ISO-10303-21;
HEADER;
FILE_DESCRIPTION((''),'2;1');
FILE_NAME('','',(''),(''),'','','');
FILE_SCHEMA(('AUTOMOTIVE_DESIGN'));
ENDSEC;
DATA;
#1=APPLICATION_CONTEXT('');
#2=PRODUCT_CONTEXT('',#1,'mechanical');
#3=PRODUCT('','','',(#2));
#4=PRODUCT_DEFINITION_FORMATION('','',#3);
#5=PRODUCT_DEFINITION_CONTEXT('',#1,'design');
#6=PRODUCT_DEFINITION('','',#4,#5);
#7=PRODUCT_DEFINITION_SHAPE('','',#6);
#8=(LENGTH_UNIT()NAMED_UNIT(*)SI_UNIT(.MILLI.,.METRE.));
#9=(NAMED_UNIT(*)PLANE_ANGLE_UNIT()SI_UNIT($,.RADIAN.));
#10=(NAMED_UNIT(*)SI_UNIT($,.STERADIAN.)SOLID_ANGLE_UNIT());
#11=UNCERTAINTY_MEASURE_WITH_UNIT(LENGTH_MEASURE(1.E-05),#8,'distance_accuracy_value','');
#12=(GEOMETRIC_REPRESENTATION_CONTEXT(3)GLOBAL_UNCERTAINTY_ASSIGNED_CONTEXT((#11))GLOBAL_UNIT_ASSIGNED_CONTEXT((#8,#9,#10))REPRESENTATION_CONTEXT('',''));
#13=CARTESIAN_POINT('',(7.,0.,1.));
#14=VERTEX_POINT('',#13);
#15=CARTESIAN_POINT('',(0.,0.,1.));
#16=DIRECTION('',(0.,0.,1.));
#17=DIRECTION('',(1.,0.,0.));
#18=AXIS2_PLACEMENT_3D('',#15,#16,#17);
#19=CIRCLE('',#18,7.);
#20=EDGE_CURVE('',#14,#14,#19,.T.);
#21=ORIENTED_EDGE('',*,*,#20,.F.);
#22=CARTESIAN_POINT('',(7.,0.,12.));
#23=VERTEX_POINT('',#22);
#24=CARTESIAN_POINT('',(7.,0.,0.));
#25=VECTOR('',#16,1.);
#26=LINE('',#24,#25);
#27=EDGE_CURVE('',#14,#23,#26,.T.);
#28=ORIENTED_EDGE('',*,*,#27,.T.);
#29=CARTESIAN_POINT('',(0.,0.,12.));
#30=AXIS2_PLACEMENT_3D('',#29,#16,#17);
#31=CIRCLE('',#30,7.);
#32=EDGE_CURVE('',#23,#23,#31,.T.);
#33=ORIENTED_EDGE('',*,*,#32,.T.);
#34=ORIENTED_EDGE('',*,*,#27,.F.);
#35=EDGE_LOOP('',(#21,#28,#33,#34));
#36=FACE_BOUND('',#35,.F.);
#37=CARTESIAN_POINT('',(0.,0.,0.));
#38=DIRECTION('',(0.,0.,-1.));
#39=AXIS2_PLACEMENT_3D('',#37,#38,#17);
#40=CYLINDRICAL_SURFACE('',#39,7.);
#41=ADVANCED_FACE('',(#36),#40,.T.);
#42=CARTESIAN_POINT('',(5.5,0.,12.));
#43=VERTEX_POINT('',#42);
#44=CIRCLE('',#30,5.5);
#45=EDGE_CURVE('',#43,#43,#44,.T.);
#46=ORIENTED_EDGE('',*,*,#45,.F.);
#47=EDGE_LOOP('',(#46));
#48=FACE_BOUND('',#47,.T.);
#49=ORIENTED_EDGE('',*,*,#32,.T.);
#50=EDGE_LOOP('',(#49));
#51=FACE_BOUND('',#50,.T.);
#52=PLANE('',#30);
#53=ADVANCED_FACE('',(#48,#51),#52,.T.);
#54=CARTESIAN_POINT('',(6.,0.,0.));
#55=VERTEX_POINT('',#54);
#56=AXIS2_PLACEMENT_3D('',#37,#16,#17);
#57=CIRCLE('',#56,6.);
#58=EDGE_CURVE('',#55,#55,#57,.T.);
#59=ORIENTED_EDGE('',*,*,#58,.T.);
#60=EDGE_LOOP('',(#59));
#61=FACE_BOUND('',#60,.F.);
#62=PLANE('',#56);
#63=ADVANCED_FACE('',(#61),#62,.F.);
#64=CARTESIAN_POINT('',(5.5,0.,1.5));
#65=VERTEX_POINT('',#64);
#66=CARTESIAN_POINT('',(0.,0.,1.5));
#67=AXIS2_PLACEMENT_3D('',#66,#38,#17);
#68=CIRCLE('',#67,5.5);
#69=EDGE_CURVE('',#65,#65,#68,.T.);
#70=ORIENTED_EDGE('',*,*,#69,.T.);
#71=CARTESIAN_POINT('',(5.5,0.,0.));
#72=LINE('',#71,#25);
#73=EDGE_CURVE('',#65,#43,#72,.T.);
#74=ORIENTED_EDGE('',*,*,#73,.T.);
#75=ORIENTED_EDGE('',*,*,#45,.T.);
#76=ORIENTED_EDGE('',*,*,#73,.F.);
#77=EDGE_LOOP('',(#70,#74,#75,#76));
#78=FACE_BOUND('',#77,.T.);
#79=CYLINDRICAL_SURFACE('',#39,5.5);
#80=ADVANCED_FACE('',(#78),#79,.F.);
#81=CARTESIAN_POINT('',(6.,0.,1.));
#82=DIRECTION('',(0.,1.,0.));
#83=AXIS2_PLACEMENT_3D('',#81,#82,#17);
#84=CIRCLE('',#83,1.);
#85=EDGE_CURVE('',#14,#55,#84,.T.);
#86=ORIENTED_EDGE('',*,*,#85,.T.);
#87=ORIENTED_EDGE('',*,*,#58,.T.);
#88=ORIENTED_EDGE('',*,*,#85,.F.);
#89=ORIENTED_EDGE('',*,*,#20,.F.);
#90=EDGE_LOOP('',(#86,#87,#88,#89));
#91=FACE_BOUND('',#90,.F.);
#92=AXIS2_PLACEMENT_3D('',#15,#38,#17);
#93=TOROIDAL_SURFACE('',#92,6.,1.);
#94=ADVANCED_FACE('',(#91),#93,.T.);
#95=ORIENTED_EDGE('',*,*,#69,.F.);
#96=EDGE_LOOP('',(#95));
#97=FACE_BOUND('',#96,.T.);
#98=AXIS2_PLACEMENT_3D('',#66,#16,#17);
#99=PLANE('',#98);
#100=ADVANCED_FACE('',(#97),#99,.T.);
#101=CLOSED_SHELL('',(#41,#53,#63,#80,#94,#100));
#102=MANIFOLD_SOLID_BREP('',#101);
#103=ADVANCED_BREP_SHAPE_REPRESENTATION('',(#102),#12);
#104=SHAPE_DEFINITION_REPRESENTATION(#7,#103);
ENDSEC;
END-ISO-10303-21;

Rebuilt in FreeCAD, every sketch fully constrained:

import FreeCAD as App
import Part
import Sketcher
from FreeCAD import Vector
Q = App.Units.Quantity


def edges_at(feature, points):
    """Names of the edges that pass closest to the given points."""
    edges = feature.Shape.Edges
    near = lambda p: min(range(len(edges)), key=lambda i: edges[i].distToShape(Part.Vertex(*p))[0])
    return sorted({f"Edge{near(p) + 1}" for p in points})


def faces_at(feature, points):
    """Names of the faces that lie closest to the given points."""
    faces = feature.Shape.Faces
    near = lambda p: min(range(len(faces)), key=lambda i: faces[i].distToShape(Part.Vertex(*p))[0])
    return sorted({f"Face{near(p) + 1}" for p in points})

doc = App.newDocument("Part")
body = doc.addObject("PartDesign::Body", "Body")

# Sketch on XY plane
sketch1 = doc.addObject("Sketcher::SketchObject", "Sketch")
body.addObject(sketch1)
sketch1.AttachmentSupport = (doc.XY_Plane, [""])
sketch1.MapMode = "FlatFace"
sketch1.addGeometry(Part.Circle(Vector(0, 0, 0), Vector(0, 0, 1), 7), False)
sketch1.addConstraint(Sketcher.Constraint("Coincident", 0, 3, -1, 1))
sketch1.addConstraint(Sketcher.Constraint("Diameter", 0, Q("14 mm")))
pad1 = doc.addObject("PartDesign::Pad", "Pad")
body.addObject(pad1)
pad1.Profile = sketch1
pad1.Length = 12
doc.recompute()

thickness = doc.addObject("PartDesign::Thickness", "Thickness")
body.addObject(thickness)
thickness.Base = (pad1, faces_at(pad1, [(0, 0, 12)]))
thickness.Value = 1.5
thickness.Reversed = True
thickness.Join = "Arc"
doc.recompute()

fillet = doc.addObject("PartDesign::Fillet", "Fillet")
body.addObject(fillet)
fillet.Base = (thickness, edges_at(thickness, [(-7, 0, 0)]))
fillet.Radius = 1

doc.recompute()
